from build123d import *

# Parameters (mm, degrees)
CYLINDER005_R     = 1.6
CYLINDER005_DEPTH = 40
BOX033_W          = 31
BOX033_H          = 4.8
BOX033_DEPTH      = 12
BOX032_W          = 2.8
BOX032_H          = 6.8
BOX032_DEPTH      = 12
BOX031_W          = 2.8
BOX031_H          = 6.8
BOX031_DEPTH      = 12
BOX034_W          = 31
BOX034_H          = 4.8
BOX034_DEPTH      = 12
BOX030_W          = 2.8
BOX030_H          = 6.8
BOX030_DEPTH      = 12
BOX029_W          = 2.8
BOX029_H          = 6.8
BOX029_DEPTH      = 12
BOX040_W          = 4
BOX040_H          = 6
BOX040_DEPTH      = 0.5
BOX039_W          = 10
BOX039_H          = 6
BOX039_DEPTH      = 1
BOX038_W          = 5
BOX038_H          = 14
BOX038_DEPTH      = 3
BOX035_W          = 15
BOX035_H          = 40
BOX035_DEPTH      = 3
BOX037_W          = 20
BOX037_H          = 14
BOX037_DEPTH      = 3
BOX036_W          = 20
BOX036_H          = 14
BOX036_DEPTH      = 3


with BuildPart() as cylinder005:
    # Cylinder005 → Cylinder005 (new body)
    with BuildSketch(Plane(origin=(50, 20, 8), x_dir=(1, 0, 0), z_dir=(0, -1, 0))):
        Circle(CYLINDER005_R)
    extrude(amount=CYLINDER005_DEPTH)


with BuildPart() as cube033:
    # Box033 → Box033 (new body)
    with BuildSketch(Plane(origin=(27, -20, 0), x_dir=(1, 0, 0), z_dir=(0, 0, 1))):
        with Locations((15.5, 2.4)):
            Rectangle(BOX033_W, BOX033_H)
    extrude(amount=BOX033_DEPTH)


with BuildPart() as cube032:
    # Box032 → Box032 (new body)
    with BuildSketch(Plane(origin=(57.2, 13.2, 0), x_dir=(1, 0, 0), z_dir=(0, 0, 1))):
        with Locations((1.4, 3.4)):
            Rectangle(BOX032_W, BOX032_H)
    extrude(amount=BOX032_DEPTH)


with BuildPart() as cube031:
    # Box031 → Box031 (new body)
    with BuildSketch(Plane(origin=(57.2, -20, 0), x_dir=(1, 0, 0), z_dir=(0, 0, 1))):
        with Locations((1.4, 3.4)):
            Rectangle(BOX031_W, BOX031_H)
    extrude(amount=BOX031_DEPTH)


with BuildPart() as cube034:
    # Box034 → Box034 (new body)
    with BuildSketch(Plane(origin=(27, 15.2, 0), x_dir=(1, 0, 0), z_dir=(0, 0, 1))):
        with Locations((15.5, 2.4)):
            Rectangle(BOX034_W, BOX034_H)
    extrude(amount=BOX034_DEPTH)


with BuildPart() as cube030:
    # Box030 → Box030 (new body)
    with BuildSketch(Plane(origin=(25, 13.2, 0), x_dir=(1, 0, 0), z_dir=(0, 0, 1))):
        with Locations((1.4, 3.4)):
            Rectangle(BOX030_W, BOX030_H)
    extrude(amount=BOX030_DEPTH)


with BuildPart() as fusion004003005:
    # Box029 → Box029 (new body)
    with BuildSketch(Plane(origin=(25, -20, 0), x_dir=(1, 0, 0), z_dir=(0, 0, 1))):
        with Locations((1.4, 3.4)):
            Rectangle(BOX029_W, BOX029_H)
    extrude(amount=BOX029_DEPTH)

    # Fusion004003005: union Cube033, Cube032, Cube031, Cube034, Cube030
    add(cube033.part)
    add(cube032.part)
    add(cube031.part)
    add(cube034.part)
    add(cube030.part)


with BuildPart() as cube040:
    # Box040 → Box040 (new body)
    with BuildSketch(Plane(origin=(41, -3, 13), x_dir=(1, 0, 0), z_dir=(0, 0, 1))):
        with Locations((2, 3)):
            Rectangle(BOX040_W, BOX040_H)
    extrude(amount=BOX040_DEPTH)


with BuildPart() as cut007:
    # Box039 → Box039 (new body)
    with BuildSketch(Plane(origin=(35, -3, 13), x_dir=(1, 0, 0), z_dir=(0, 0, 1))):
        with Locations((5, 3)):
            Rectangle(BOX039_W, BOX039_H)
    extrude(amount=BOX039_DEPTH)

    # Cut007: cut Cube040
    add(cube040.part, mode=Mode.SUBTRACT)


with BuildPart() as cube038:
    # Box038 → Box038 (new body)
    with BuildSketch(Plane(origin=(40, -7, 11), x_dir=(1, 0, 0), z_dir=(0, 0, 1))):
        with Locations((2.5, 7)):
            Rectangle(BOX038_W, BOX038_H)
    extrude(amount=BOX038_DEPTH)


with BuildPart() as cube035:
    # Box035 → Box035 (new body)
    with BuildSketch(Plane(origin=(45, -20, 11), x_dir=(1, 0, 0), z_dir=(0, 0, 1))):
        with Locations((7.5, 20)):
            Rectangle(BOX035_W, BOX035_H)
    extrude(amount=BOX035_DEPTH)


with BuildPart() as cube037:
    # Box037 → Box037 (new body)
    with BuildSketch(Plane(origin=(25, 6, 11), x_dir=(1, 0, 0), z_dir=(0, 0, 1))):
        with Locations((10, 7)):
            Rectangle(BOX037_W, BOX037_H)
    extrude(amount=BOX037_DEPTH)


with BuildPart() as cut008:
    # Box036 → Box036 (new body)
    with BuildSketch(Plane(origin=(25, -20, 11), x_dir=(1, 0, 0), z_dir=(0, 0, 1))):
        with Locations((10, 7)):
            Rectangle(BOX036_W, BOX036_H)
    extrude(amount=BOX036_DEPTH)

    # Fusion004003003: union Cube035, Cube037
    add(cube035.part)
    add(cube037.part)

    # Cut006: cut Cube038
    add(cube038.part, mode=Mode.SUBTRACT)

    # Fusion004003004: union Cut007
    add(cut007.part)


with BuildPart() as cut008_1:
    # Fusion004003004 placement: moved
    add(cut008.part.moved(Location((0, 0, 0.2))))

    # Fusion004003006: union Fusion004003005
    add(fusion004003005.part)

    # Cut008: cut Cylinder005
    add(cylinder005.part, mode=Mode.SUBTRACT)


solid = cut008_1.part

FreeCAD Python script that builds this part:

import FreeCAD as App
import Part
import Sketcher
from FreeCAD import Vector

doc = App.newDocument("Part")
body = doc.addObject("PartDesign::Body", "Body")

sketch1 = body.newObject("Sketcher::SketchObject", "Sketch")
sketch1.AttachmentSupport = (doc.getObject("XZ_Plane"), [""])
sketch1.MapMode = "FlatFace"
sketch1.AttachmentOffset = App.Placement(Vector(0, 0, -20), App.Rotation())
sketch1.addGeometry(Part.Circle(Vector(50, 8, 0), Vector(0, 0, 1), 1.6), False)
sketch1.addConstraint([
    Sketcher.Constraint("Diameter", 0, 3.2),
    Sketcher.Constraint("DistanceX", -1, 1, 0, 3, 50.0),
    Sketcher.Constraint("DistanceY", -1, 1, 0, 3, 8.0),
])
pad1 = body.newObject("PartDesign::Pad", "Pad")
pad1.Profile = sketch1
pad1.Length = 40
body2 = doc.addObject("PartDesign::Body", "Body001")

sketch2 = body2.newObject("Sketcher::SketchObject", "Sketch001")
sketch2.AttachmentSupport = (doc.getObject("XY_Plane001"), [""])
sketch2.MapMode = "FlatFace"
sketch2.addGeometry([
    Part.LineSegment(Vector(27, -15.2, 0), Vector(27, -20, 0)),
    Part.LineSegment(Vector(27, -20, 0), Vector(58, -20, 0)),
    Part.LineSegment(Vector(58, -20, 0), Vector(58, -15.2, 0)),
    Part.LineSegment(Vector(58, -15.2, 0), Vector(27, -15.2, 0)),
], False)
sketch2.addConstraint([
    Sketcher.Constraint("Coincident", 0, 2, 1, 1),
    Sketcher.Constraint("Coincident", 1, 2, 2, 1),
    Sketcher.Constraint("Coincident", 2, 2, 3, 1),
    Sketcher.Constraint("Coincident", 3, 2, 0, 1),
    Sketcher.Constraint("Vertical", 0),
    Sketcher.Constraint("Horizontal", 1),
    Sketcher.Constraint("Vertical", 2),
    Sketcher.Constraint("Horizontal", 3),
    Sketcher.Constraint("DistanceX", 1, 1, 1, 2, 31.0),
    Sketcher.Constraint("DistanceY", 0, 2, 0, 1, 4.8),
    Sketcher.Constraint("DistanceX", -1, 1, 0, 2, 27.0),
    Sketcher.Constraint("DistanceY", 0, 2, -1, 1, 20.0),
])
pad2 = body2.newObject("PartDesign::Pad", "Pad001")
pad2.Profile = sketch2
pad2.Length = 12
body3 = doc.addObject("PartDesign::Body", "Body002")

sketch3 = body3.newObject("Sketcher::SketchObject", "Sketch002")
sketch3.AttachmentSupport = (doc.getObject("XY_Plane002"), [""])
sketch3.MapMode = "FlatFace"
sketch3.addGeometry([
    Part.LineSegment(Vector(57.2, 20, 0), Vector(57.2, 13.2, 0)),
    Part.LineSegment(Vector(57.2, 13.2, 0), Vector(60, 13.2, 0)),
    Part.LineSegment(Vector(60, 13.2, 0), Vector(60, 20, 0)),
    Part.LineSegment(Vector(60, 20, 0), Vector(57.2, 20, 0)),
], False)
sketch3.addConstraint([
    Sketcher.Constraint("Coincident", 0, 2, 1, 1),
    Sketcher.Constraint("Coincident", 1, 2, 2, 1),
    Sketcher.Constraint("Coincident", 2, 2, 3, 1),
    Sketcher.Constraint("Coincident", 3, 2, 0, 1),
    Sketcher.Constraint("Vertical", 0),
    Sketcher.Constraint("Horizontal", 1),
    Sketcher.Constraint("Vertical", 2),
    Sketcher.Constraint("Horizontal", 3),
    Sketcher.Constraint("DistanceX", 1, 1, 1, 2, 2.8),
    Sketcher.Constraint("DistanceY", 0, 2, 0, 1, 6.8),
    Sketcher.Constraint("DistanceX", -1, 1, 1, 2, 60.0),
    Sketcher.Constraint("DistanceY", -1, 1, 2, 2, 20.0),
])
pad3 = body3.newObject("PartDesign::Pad", "Pad002")
pad3.Profile = sketch3
pad3.Length = 12
body4 = doc.addObject("PartDesign::Body", "Body003")

sketch4 = body4.newObject("Sketcher::SketchObject", "Sketch003")
sketch4.AttachmentSupport = (doc.getObject("XY_Plane003"), [""])
sketch4.MapMode = "FlatFace"
sketch4.addGeometry([
    Part.LineSegment(Vector(57.2, -13.2, 0), Vector(57.2, -20, 0)),
    Part.LineSegment(Vector(57.2, -20, 0), Vector(60, -20, 0)),
    Part.LineSegment(Vector(60, -20, 0), Vector(60, -13.2, 0)),
    Part.LineSegment(Vector(60, -13.2, 0), Vector(57.2, -13.2, 0)),
], False)
sketch4.addConstraint([
    Sketcher.Constraint("Coincident", 0, 2, 1, 1),
    Sketcher.Constraint("Coincident", 1, 2, 2, 1),
    Sketcher.Constraint("Coincident", 2, 2, 3, 1),
    Sketcher.Constraint("Coincident", 3, 2, 0, 1),
    Sketcher.Constraint("Vertical", 0),
    Sketcher.Constraint("Horizontal", 1),
    Sketcher.Constraint("Vertical", 2),
    Sketcher.Constraint("Horizontal", 3),
    Sketcher.Constraint("DistanceX", 1, 1, 1, 2, 2.8),
    Sketcher.Constraint("DistanceY", 0, 2, 0, 1, 6.8),
    Sketcher.Constraint("DistanceY", 0, 2, -1, 1, 20.0),
    Sketcher.Constraint("DistanceX", -1, 1, 1, 2, 60.0),
])
pad4 = body4.newObject("PartDesign::Pad", "Pad003")
pad4.Profile = sketch4
pad4.Length = 12
body5 = doc.addObject("PartDesign::Body", "Body004")

sketch5 = body5.newObject("Sketcher::SketchObject", "Sketch004")
sketch5.AttachmentSupport = (doc.getObject("XY_Plane004"), [""])
sketch5.MapMode = "FlatFace"
sketch5.addGeometry([
    Part.LineSegment(Vector(27, 20, 0), Vector(27, 15.2, 0)),
    Part.LineSegment(Vector(27, 15.2, 0), Vector(58, 15.2, 0)),
    Part.LineSegment(Vector(58, 15.2, 0), Vector(58, 20, 0)),
    Part.LineSegment(Vector(58, 20, 0), Vector(27, 20, 0)),
], False)
sketch5.addConstraint([
    Sketcher.Constraint("Coincident", 0, 2, 1, 1),
    Sketcher.Constraint("Coincident", 1, 2, 2, 1),
    Sketcher.Constraint("Coincident", 2, 2, 3, 1),
    Sketcher.Constraint("Coincident", 3, 2, 0, 1),
    Sketcher.Constraint("Vertical", 0),
    Sketcher.Constraint("Horizontal", 1),
    Sketcher.Constraint("Vertical", 2),
    Sketcher.Constraint("Horizontal", 3),
    Sketcher.Constraint("DistanceX", 1, 1, 1, 2, 31.0),
    Sketcher.Constraint("DistanceY", 0, 2, 0, 1, 4.8),
    Sketcher.Constraint("DistanceX", -1, 1, 0, 2, 27.0),
    Sketcher.Constraint("DistanceY", -1, 1, 2, 2, 20.0),
])
pad5 = body5.newObject("PartDesign::Pad", "Pad004")
pad5.Profile = sketch5
pad5.Length = 12
body6 = doc.addObject("PartDesign::Body", "Body005")

sketch6 = body6.newObject("Sketcher::SketchObject", "Sketch005")
sketch6.AttachmentSupport = (doc.getObject("XY_Plane005"), [""])
sketch6.MapMode = "FlatFace"
sketch6.addGeometry([
    Part.LineSegment(Vector(25, 20, 0), Vector(25, 13.2, 0)),
    Part.LineSegment(Vector(25, 13.2, 0), Vector(27.8, 13.2, 0)),
    Part.LineSegment(Vector(27.8, 13.2, 0), Vector(27.8, 20, 0)),
    Part.LineSegment(Vector(27.8, 20, 0), Vector(25, 20, 0)),
], False)
sketch6.addConstraint([
    Sketcher.Constraint("Coincident", 0, 2, 1, 1),
    Sketcher.Constraint("Coincident", 1, 2, 2, 1),
    Sketcher.Constraint("Coincident", 2, 2, 3, 1),
    Sketcher.Constraint("Coincident", 3, 2, 0, 1),
    Sketcher.Constraint("Vertical", 0),
    Sketcher.Constraint("Horizontal", 1),
    Sketcher.Constraint("Vertical", 2),
    Sketcher.Constraint("Horizontal", 3),
    Sketcher.Constraint("DistanceX", 1, 1, 1, 2, 2.8),
    Sketcher.Constraint("DistanceY", 0, 2, 0, 1, 6.8),
    Sketcher.Constraint("DistanceX", -1, 1, 0, 2, 25.0),
    Sketcher.Constraint("DistanceY", -1, 1, 2, 2, 20.0),
])
pad6 = body6.newObject("PartDesign::Pad", "Pad005")
pad6.Profile = sketch6
pad6.Length = 12
body7 = doc.addObject("PartDesign::Body", "Body006")
body7.AllowCompound = True

sketch7 = body7.newObject("Sketcher::SketchObject", "Sketch006")
sketch7.AttachmentSupport = (doc.getObject("XY_Plane006"), [""])
sketch7.MapMode = "FlatFace"
sketch7.addGeometry([
    Part.LineSegment(Vector(25, -13.2, 0), Vector(25, -20, 0)),
    Part.LineSegment(Vector(25, -20, 0), Vector(27.8, -20, 0)),
    Part.LineSegment(Vector(27.8, -20, 0), Vector(27.8, -13.2, 0)),
    Part.LineSegment(Vector(27.8, -13.2, 0), Vector(25, -13.2, 0)),
], False)
sketch7.addConstraint([
    Sketcher.Constraint("Coincident", 0, 2, 1, 1),
    Sketcher.Constraint("Coincident", 1, 2, 2, 1),
    Sketcher.Constraint("Coincident", 2, 2, 3, 1),
    Sketcher.Constraint("Coincident", 3, 2, 0, 1),
    Sketcher.Constraint("Vertical", 0),
    Sketcher.Constraint("Horizontal", 1),
    Sketcher.Constraint("Vertical", 2),
    Sketcher.Constraint("Horizontal", 3),
    Sketcher.Constraint("DistanceX", 1, 1, 1, 2, 2.8),
    Sketcher.Constraint("DistanceY", 0, 2, 0, 1, 6.8),
    Sketcher.Constraint("DistanceX", -1, 1, 0, 2, 25.0),
    Sketcher.Constraint("DistanceY", 0, 2, -1, 1, 20.0),
])
pad7 = body7.newObject("PartDesign::Pad", "Pad006")
pad7.Profile = sketch7
pad7.Length = 12
doc.recompute()

boolean = body7.newObject("PartDesign::Boolean", "Boolean")
boolean.Type = "Fuse"
boolean.addObjects([body2])
doc.recompute()

boolean2 = body7.newObject("PartDesign::Boolean", "Boolean001")
boolean2.Type = "Fuse"
boolean2.addObjects([body3])
doc.recompute()

boolean3 = body7.newObject("PartDesign::Boolean", "Boolean002")
boolean3.Type = "Fuse"
boolean3.addObjects([body4])
doc.recompute()

boolean4 = body7.newObject("PartDesign::Boolean", "Boolean003")
boolean4.Type = "Fuse"
boolean4.addObjects([body5])
doc.recompute()

boolean5 = body7.newObject("PartDesign::Boolean", "Boolean004")
boolean5.Type = "Fuse"
boolean5.addObjects([body6])
body8 = doc.addObject("PartDesign::Body", "Body007")

sketch8 = body8.newObject("Sketcher::SketchObject", "Sketch007")
sketch8.AttachmentSupport = (doc.getObject("XY_Plane007"), [""])
sketch8.MapMode = "FlatFace"
sketch8.AttachmentOffset = App.Placement(Vector(0, 0, 13), App.Rotation())
sketch8.addGeometry([
    Part.LineSegment(Vector(41, 3, 0), Vector(41, -3, 0)),
    Part.LineSegment(Vector(41, -3, 0), Vector(45, -3, 0)),
    Part.LineSegment(Vector(45, -3, 0), Vector(45, 3, 0)),
    Part.LineSegment(Vector(45, 3, 0), Vector(41, 3, 0)),
], False)
sketch8.addConstraint([
    Sketcher.Constraint("Coincident", 0, 2, 1, 1),
    Sketcher.Constraint("Coincident", 1, 2, 2, 1),
    Sketcher.Constraint("Coincident", 2, 2, 3, 1),
    Sketcher.Constraint("Coincident", 3, 2, 0, 1),
    Sketcher.Constraint("Vertical", 0),
    Sketcher.Constraint("Horizontal", 1),
    Sketcher.Constraint("Vertical", 2),
    Sketcher.Constraint("Horizontal", 3),
    Sketcher.Constraint("DistanceX", 1, 1, 1, 2, 4.0),
    Sketcher.Constraint("DistanceY", 0, 2, 0, 1, 6.0),
    Sketcher.Constraint("DistanceX", -1, 1, 0, 2, 41.0),
    Sketcher.Constraint("DistanceY", 0, 2, -1, 1, 3.0),
])
pad8 = body8.newObject("PartDesign::Pad", "Pad007")
pad8.Profile = sketch8
pad8.Length = 0.5
body9 = doc.addObject("PartDesign::Body", "Body008")

sketch9 = body9.newObject("Sketcher::SketchObject", "Sketch008")
sketch9.AttachmentSupport = (doc.getObject("XY_Plane008"), [""])
sketch9.MapMode = "FlatFace"
sketch9.AttachmentOffset = App.Placement(Vector(0, 0, 13), App.Rotation())
sketch9.addGeometry([
    Part.LineSegment(Vector(35, 3, 0), Vector(35, -3, 0)),
    Part.LineSegment(Vector(35, -3, 0), Vector(45, -3, 0)),
    Part.LineSegment(Vector(45, -3, 0), Vector(45, 3, 0)),
    Part.LineSegment(Vector(45, 3, 0), Vector(35, 3, 0)),
], False)
sketch9.addConstraint([
    Sketcher.Constraint("Coincident", 0, 2, 1, 1),
    Sketcher.Constraint("Coincident", 1, 2, 2, 1),
    Sketcher.Constraint("Coincident", 2, 2, 3, 1),
    Sketcher.Constraint("Coincident", 3, 2, 0, 1),
    Sketcher.Constraint("Vertical", 0),
    Sketcher.Constraint("Horizontal", 1),
    Sketcher.Constraint("Vertical", 2),
    Sketcher.Constraint("Horizontal", 3),
    Sketcher.Constraint("DistanceX", 1, 1, 1, 2, 10.0),
    Sketcher.Constraint("DistanceY", 0, 2, 0, 1, 6.0),
    Sketcher.Constraint("DistanceX", -1, 1, 0, 2, 35.0),
    Sketcher.Constraint("DistanceY", 0, 2, -1, 1, 3.0),
])
pad9 = body9.newObject("PartDesign::Pad", "Pad008")
pad9.Profile = sketch9
pad9.Length = 1
doc.recompute()

boolean6 = body9.newObject("PartDesign::Boolean", "Boolean005")
boolean6.Type = "Cut"
boolean6.addObjects([body8])
body10 = doc.addObject("PartDesign::Body", "Body009")

sketch10 = body10.newObject("Sketcher::SketchObject", "Sketch009")
sketch10.AttachmentSupport = (doc.getObject("XY_Plane009"), [""])
sketch10.MapMode = "FlatFace"
sketch10.AttachmentOffset = App.Placement(Vector(0, 0, 11), App.Rotation())
sketch10.addGeometry([
    Part.LineSegment(Vector(40, 7, 0), Vector(40, -7, 0)),
    Part.LineSegment(Vector(40, -7, 0), Vector(45, -7, 0)),
    Part.LineSegment(Vector(45, -7, 0), Vector(45, 7, 0)),
    Part.LineSegment(Vector(45, 7, 0), Vector(40, 7, 0)),
], False)
sketch10.addConstraint([
    Sketcher.Constraint("Coincident", 0, 2, 1, 1),
    Sketcher.Constraint("Coincident", 1, 2, 2, 1),
    Sketcher.Constraint("Coincident", 2, 2, 3, 1),
    Sketcher.Constraint("Coincident", 3, 2, 0, 1),
    Sketcher.Constraint("Vertical", 0),
    Sketcher.Constraint("Horizontal", 1),
    Sketcher.Constraint("Vertical", 2),
    Sketcher.Constraint("Horizontal", 3),
    Sketcher.Constraint("DistanceX", 1, 1, 1, 2, 5.0),
    Sketcher.Constraint("DistanceY", 0, 2, 0, 1, 14.0),
    Sketcher.Constraint("DistanceX", -1, 1, 0, 2, 40.0),
    Sketcher.Constraint("DistanceY", 0, 2, -1, 1, 7.0),
])
pad10 = body10.newObject("PartDesign::Pad", "Pad009")
pad10.Profile = sketch10
pad10.Length = 3
body11 = doc.addObject("PartDesign::Body", "Body010")

sketch11 = body11.newObject("Sketcher::SketchObject", "Sketch010")
sketch11.AttachmentSupport = (doc.getObject("XY_Plane010"), [""])
sketch11.MapMode = "FlatFace"
sketch11.AttachmentOffset = App.Placement(Vector(0, 0, 11), App.Rotation())
sketch11.addGeometry([
    Part.LineSegment(Vector(45, 20, 0), Vector(45, -20, 0)),
    Part.LineSegment(Vector(45, -20, 0), Vector(60, -20, 0)),
    Part.LineSegment(Vector(60, -20, 0), Vector(60, 20, 0)),
    Part.LineSegment(Vector(60, 20, 0), Vector(45, 20, 0)),
], False)
sketch11.addConstraint([
    Sketcher.Constraint("Coincident", 0, 2, 1, 1),
    Sketcher.Constraint("Coincident", 1, 2, 2, 1),
    Sketcher.Constraint("Coincident", 2, 2, 3, 1),
    Sketcher.Constraint("Coincident", 3, 2, 0, 1),
    Sketcher.Constraint("Vertical", 0),
    Sketcher.Constraint("Horizontal", 1),
    Sketcher.Constraint("Vertical", 2),
    Sketcher.Constraint("Horizontal", 3),
    Sketcher.Constraint("DistanceX", 1, 1, 1, 2, 15.0),
    Sketcher.Constraint("DistanceY", 0, 2, 0, 1, 40.0),
    Sketcher.Constraint("DistanceX", -1, 1, 0, 2, 45.0),
    Sketcher.Constraint("DistanceY", 0, 2, -1, 1, 20.0),
])
pad11 = body11.newObject("PartDesign::Pad", "Pad010")
pad11.Profile = sketch11
pad11.Length = 3
body12 = doc.addObject("PartDesign::Body", "Body011")

sketch12 = body12.newObject("Sketcher::SketchObject", "Sketch011")
sketch12.AttachmentSupport = (doc.getObject("XY_Plane011"), [""])
sketch12.MapMode = "FlatFace"
sketch12.AttachmentOffset = App.Placement(Vector(0, 0, 11), App.Rotation())
sketch12.addGeometry([
    Part.LineSegment(Vector(25, 20, 0), Vector(25, 6, 0)),
    Part.LineSegment(Vector(25, 6, 0), Vector(45, 6, 0)),
    Part.LineSegment(Vector(45, 6, 0), Vector(45, 20, 0)),
    Part.LineSegment(Vector(45, 20, 0), Vector(25, 20, 0)),
], False)
sketch12.addConstraint([
    Sketcher.Constraint("Coincident", 0, 2, 1, 1),
    Sketcher.Constraint("Coincident", 1, 2, 2, 1),
    Sketcher.Constraint("Coincident", 2, 2, 3, 1),
    Sketcher.Constraint("Coincident", 3, 2, 0, 1),
    Sketcher.Constraint("Vertical", 0),
    Sketcher.Constraint("Horizontal", 1),
    Sketcher.Constraint("Vertical", 2),
    Sketcher.Constraint("Horizontal", 3),
    Sketcher.Constraint("DistanceX", 1, 1, 1, 2, 20.0),
    Sketcher.Constraint("DistanceY", 0, 2, 0, 1, 14.0),
    Sketcher.Constraint("DistanceX", -1, 1, 0, 2, 25.0),
    Sketcher.Constraint("DistanceY", -1, 1, 0, 2, 6.0),
])
pad12 = body12.newObject("PartDesign::Pad", "Pad011")
pad12.Profile = sketch12
pad12.Length = 3
body13 = doc.addObject("PartDesign::Body", "Body012")

sketch13 = body13.newObject("Sketcher::SketchObject", "Sketch012")
sketch13.AttachmentSupport = (doc.getObject("XY_Plane012"), [""])
sketch13.MapMode = "FlatFace"
sketch13.AttachmentOffset = App.Placement(Vector(0, 0, 11), App.Rotation())
sketch13.addGeometry([
    Part.LineSegment(Vector(25, -6, 0), Vector(25, -20, 0)),
    Part.LineSegment(Vector(25, -20, 0), Vector(45, -20, 0)),
    Part.LineSegment(Vector(45, -20, 0), Vector(45, -6, 0)),
    Part.LineSegment(Vector(45, -6, 0), Vector(25, -6, 0)),
], False)
sketch13.addConstraint([
    Sketcher.Constraint("Coincident", 0, 2, 1, 1),
    Sketcher.Constraint("Coincident", 1, 2, 2, 1),
    Sketcher.Constraint("Coincident", 2, 2, 3, 1),
    Sketcher.Constraint("Coincident", 3, 2, 0, 1),
    Sketcher.Constraint("Vertical", 0),
    Sketcher.Constraint("Horizontal", 1),
    Sketcher.Constraint("Vertical", 2),
    Sketcher.Constraint("Horizontal", 3),
    Sketcher.Constraint("DistanceX", 1, 1, 1, 2, 20.0),
    Sketcher.Constraint("DistanceY", 0, 2, 0, 1, 14.0),
    Sketcher.Constraint("DistanceX", -1, 1, 0, 2, 25.0),
    Sketcher.Constraint("DistanceY", 0, 2, -1, 1, 20.0),
])
pad13 = body13.newObject("PartDesign::Pad", "Pad012")
pad13.Profile = sketch13
pad13.Length = 3
doc.recompute()

boolean7 = body13.newObject("PartDesign::Boolean", "Boolean006")
boolean7.Type = "Fuse"
boolean7.addObjects([body11])
doc.recompute()

boolean8 = body13.newObject("PartDesign::Boolean", "Boolean007")
boolean8.Type = "Fuse"
boolean8.addObjects([body12])
doc.recompute()

boolean9 = body13.newObject("PartDesign::Boolean", "Boolean008")
boolean9.Type = "Cut"
boolean9.addObjects([body10])
doc.recompute()

boolean10 = body13.newObject("PartDesign::Boolean", "Boolean009")
boolean10.Type = "Fuse"
boolean10.addObjects([body9])
body14 = doc.addObject("PartDesign::Body", "Body013")
doc.recompute()

body13.Placement = App.Placement(Vector(0, 0, 0.2), App.Rotation(Vector(0, 0, 1), 0))
boolean11 = body14.newObject("PartDesign::Boolean", "Boolean010")
boolean11.Type = "Fuse"
boolean11.addObjects([body13])
doc.recompute()

boolean12 = body14.newObject("PartDesign::Boolean", "Boolean011")
boolean12.Type = "Fuse"
boolean12.addObjects([body7])
doc.recompute()

boolean13 = body14.newObject("PartDesign::Boolean", "Boolean012")
boolean13.Type = "Cut"
boolean13.addObjects([body])

doc.recompute()
